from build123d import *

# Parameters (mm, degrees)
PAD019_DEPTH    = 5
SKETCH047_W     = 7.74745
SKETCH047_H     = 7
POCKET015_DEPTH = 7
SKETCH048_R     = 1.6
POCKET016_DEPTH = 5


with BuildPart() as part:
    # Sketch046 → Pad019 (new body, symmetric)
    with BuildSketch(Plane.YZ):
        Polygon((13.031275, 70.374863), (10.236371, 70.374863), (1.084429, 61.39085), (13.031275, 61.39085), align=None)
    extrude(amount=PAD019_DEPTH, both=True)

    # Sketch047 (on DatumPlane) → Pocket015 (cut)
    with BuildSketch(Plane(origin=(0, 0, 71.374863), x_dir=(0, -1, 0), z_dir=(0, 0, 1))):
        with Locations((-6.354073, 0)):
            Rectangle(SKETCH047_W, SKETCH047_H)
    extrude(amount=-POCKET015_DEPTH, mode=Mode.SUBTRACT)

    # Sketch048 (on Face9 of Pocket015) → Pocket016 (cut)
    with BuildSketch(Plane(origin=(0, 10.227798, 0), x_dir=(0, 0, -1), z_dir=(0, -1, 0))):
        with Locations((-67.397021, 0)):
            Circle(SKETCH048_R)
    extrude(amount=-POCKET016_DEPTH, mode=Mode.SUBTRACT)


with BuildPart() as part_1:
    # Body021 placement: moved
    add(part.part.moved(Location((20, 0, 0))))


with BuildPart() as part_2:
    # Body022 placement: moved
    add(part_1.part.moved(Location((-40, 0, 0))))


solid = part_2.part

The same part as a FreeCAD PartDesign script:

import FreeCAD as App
import Part
import Sketcher

V = App.Vector


def add_polygon(sketch, points):
    """Adds a closed chain of lines whose ends are joined by coincident constraints."""
    first, n = sketch.GeometryCount, len(points)
    for a, b in zip(points, points[1:] + points[:1]):
        sketch.addGeometry(Part.LineSegment(App.Vector(*a, 0), App.Vector(*b, 0)), False)
    for i in range(n):
        sketch.addConstraint(Sketcher.Constraint("Coincident", first + i, 2, first + (i + 1) % n, 1))

doc = App.newDocument("Part")
body = doc.addObject("PartDesign::Body", "Body")

sketch1 = body.newObject("Sketcher::SketchObject", "Sketch")
sketch1.AttachmentSupport = (doc.getObject("YZ_Plane"), [""])
sketch1.MapMode = "FlatFace"
add_polygon(sketch1, [(13.031275, 70.374863), (10.236371, 70.374863), (1.084429, 61.39085), (13.031275, 61.39085)])
sketch1.addConstraint([
    Sketcher.Constraint("Horizontal", 0),
    Sketcher.Constraint("Horizontal", 2),
    Sketcher.Constraint("Vertical", 3),
    Sketcher.Constraint("DistanceX", 0, 2, 0, 1, 2.794904),
    Sketcher.Constraint("DistanceX", 2, 1, 2, 2, 11.946846),
    Sketcher.Constraint("DistanceY", 3, 1, 3, 2, 8.984013),
    Sketcher.Constraint("DistanceX", -1, 1, 0, 2, 10.236371),
    Sketcher.Constraint("DistanceY", -1, 1, 1, 2, 61.39085),
])
pad1 = body.newObject("PartDesign::Pad", "Pad")
pad1.Profile = sketch1
pad1.Length = 10
pad1.Midplane = True

sketch2 = body.newObject("Sketcher::SketchObject", "Sketch001")
sketch2.AttachmentSupport = (doc.getObject("XY_Plane"), [""])
sketch2.MapMode = "FlatFace"
sketch2.AttachmentOffset = App.Placement(V(0, 0, 71.374863), App.Rotation())
add_polygon(sketch2, [(3.5, 10.227798), (-3.5, 10.227798), (-3.5, 2.480348), (3.5, 2.480348)])
sketch2.addConstraint([
    Sketcher.Constraint("Horizontal", 0),
    Sketcher.Constraint("Vertical", 1),
    Sketcher.Constraint("Horizontal", 2),
    Sketcher.Constraint("Vertical", 3),
    Sketcher.Constraint("DistanceX", 0, 2, 0, 1, 7.0),
    Sketcher.Constraint("DistanceX", 0, 2, -1, 1, 3.5),
    Sketcher.Constraint("DistanceY", 1, 2, 1, 1, 7.74745),
    Sketcher.Constraint("DistanceY", -1, 1, 1, 2, 2.480348),
])
pocket1 = body.newObject("PartDesign::Pocket", "Pocket")
pocket1.Profile = sketch2
pocket1.Length = 7

sketch3 = body.newObject("Sketcher::SketchObject", "Sketch002")
sketch3.AttachmentSupport = (doc.getObject("XZ_Plane"), [""])
sketch3.MapMode = "FlatFace"
sketch3.AttachmentOffset = App.Placement(V(0, 0, -10.227798), App.Rotation())
sketch3.addGeometry(Part.Circle(V(0, 67.397021, 0), V(0, 0, 1), 1.6), False)
sketch3.addConstraint([
    Sketcher.Constraint("PointOnObject", 0, 3, -2),
    Sketcher.Constraint("Diameter", 0, 3.2),
    Sketcher.Constraint("DistanceY", -1, 1, 0, 3, 67.397021),
])
pocket2 = body.newObject("PartDesign::Pocket", "Pocket001")
pocket2.Profile = sketch3
pocket2.Length = 5
body2 = doc.addObject("PartDesign::Body", "Body001")
doc.recompute()

body.Placement = App.Placement(V(20, 0, 0), App.Rotation(V(0, 0, 1), 0))
boolean = body2.newObject("PartDesign::Boolean", "Boolean")
boolean.Type = "Fuse"
boolean.addObjects([body])
body3 = doc.addObject("PartDesign::Body", "Body002")
doc.recompute()

body2.Placement = App.Placement(V(-40, 0, 0), App.Rotation(V(0, 0, 1), 0))
boolean2 = body3.newObject("PartDesign::Boolean", "Boolean001")
boolean2.Type = "Fuse"
boolean2.addObjects([body2])

doc.recompute()
